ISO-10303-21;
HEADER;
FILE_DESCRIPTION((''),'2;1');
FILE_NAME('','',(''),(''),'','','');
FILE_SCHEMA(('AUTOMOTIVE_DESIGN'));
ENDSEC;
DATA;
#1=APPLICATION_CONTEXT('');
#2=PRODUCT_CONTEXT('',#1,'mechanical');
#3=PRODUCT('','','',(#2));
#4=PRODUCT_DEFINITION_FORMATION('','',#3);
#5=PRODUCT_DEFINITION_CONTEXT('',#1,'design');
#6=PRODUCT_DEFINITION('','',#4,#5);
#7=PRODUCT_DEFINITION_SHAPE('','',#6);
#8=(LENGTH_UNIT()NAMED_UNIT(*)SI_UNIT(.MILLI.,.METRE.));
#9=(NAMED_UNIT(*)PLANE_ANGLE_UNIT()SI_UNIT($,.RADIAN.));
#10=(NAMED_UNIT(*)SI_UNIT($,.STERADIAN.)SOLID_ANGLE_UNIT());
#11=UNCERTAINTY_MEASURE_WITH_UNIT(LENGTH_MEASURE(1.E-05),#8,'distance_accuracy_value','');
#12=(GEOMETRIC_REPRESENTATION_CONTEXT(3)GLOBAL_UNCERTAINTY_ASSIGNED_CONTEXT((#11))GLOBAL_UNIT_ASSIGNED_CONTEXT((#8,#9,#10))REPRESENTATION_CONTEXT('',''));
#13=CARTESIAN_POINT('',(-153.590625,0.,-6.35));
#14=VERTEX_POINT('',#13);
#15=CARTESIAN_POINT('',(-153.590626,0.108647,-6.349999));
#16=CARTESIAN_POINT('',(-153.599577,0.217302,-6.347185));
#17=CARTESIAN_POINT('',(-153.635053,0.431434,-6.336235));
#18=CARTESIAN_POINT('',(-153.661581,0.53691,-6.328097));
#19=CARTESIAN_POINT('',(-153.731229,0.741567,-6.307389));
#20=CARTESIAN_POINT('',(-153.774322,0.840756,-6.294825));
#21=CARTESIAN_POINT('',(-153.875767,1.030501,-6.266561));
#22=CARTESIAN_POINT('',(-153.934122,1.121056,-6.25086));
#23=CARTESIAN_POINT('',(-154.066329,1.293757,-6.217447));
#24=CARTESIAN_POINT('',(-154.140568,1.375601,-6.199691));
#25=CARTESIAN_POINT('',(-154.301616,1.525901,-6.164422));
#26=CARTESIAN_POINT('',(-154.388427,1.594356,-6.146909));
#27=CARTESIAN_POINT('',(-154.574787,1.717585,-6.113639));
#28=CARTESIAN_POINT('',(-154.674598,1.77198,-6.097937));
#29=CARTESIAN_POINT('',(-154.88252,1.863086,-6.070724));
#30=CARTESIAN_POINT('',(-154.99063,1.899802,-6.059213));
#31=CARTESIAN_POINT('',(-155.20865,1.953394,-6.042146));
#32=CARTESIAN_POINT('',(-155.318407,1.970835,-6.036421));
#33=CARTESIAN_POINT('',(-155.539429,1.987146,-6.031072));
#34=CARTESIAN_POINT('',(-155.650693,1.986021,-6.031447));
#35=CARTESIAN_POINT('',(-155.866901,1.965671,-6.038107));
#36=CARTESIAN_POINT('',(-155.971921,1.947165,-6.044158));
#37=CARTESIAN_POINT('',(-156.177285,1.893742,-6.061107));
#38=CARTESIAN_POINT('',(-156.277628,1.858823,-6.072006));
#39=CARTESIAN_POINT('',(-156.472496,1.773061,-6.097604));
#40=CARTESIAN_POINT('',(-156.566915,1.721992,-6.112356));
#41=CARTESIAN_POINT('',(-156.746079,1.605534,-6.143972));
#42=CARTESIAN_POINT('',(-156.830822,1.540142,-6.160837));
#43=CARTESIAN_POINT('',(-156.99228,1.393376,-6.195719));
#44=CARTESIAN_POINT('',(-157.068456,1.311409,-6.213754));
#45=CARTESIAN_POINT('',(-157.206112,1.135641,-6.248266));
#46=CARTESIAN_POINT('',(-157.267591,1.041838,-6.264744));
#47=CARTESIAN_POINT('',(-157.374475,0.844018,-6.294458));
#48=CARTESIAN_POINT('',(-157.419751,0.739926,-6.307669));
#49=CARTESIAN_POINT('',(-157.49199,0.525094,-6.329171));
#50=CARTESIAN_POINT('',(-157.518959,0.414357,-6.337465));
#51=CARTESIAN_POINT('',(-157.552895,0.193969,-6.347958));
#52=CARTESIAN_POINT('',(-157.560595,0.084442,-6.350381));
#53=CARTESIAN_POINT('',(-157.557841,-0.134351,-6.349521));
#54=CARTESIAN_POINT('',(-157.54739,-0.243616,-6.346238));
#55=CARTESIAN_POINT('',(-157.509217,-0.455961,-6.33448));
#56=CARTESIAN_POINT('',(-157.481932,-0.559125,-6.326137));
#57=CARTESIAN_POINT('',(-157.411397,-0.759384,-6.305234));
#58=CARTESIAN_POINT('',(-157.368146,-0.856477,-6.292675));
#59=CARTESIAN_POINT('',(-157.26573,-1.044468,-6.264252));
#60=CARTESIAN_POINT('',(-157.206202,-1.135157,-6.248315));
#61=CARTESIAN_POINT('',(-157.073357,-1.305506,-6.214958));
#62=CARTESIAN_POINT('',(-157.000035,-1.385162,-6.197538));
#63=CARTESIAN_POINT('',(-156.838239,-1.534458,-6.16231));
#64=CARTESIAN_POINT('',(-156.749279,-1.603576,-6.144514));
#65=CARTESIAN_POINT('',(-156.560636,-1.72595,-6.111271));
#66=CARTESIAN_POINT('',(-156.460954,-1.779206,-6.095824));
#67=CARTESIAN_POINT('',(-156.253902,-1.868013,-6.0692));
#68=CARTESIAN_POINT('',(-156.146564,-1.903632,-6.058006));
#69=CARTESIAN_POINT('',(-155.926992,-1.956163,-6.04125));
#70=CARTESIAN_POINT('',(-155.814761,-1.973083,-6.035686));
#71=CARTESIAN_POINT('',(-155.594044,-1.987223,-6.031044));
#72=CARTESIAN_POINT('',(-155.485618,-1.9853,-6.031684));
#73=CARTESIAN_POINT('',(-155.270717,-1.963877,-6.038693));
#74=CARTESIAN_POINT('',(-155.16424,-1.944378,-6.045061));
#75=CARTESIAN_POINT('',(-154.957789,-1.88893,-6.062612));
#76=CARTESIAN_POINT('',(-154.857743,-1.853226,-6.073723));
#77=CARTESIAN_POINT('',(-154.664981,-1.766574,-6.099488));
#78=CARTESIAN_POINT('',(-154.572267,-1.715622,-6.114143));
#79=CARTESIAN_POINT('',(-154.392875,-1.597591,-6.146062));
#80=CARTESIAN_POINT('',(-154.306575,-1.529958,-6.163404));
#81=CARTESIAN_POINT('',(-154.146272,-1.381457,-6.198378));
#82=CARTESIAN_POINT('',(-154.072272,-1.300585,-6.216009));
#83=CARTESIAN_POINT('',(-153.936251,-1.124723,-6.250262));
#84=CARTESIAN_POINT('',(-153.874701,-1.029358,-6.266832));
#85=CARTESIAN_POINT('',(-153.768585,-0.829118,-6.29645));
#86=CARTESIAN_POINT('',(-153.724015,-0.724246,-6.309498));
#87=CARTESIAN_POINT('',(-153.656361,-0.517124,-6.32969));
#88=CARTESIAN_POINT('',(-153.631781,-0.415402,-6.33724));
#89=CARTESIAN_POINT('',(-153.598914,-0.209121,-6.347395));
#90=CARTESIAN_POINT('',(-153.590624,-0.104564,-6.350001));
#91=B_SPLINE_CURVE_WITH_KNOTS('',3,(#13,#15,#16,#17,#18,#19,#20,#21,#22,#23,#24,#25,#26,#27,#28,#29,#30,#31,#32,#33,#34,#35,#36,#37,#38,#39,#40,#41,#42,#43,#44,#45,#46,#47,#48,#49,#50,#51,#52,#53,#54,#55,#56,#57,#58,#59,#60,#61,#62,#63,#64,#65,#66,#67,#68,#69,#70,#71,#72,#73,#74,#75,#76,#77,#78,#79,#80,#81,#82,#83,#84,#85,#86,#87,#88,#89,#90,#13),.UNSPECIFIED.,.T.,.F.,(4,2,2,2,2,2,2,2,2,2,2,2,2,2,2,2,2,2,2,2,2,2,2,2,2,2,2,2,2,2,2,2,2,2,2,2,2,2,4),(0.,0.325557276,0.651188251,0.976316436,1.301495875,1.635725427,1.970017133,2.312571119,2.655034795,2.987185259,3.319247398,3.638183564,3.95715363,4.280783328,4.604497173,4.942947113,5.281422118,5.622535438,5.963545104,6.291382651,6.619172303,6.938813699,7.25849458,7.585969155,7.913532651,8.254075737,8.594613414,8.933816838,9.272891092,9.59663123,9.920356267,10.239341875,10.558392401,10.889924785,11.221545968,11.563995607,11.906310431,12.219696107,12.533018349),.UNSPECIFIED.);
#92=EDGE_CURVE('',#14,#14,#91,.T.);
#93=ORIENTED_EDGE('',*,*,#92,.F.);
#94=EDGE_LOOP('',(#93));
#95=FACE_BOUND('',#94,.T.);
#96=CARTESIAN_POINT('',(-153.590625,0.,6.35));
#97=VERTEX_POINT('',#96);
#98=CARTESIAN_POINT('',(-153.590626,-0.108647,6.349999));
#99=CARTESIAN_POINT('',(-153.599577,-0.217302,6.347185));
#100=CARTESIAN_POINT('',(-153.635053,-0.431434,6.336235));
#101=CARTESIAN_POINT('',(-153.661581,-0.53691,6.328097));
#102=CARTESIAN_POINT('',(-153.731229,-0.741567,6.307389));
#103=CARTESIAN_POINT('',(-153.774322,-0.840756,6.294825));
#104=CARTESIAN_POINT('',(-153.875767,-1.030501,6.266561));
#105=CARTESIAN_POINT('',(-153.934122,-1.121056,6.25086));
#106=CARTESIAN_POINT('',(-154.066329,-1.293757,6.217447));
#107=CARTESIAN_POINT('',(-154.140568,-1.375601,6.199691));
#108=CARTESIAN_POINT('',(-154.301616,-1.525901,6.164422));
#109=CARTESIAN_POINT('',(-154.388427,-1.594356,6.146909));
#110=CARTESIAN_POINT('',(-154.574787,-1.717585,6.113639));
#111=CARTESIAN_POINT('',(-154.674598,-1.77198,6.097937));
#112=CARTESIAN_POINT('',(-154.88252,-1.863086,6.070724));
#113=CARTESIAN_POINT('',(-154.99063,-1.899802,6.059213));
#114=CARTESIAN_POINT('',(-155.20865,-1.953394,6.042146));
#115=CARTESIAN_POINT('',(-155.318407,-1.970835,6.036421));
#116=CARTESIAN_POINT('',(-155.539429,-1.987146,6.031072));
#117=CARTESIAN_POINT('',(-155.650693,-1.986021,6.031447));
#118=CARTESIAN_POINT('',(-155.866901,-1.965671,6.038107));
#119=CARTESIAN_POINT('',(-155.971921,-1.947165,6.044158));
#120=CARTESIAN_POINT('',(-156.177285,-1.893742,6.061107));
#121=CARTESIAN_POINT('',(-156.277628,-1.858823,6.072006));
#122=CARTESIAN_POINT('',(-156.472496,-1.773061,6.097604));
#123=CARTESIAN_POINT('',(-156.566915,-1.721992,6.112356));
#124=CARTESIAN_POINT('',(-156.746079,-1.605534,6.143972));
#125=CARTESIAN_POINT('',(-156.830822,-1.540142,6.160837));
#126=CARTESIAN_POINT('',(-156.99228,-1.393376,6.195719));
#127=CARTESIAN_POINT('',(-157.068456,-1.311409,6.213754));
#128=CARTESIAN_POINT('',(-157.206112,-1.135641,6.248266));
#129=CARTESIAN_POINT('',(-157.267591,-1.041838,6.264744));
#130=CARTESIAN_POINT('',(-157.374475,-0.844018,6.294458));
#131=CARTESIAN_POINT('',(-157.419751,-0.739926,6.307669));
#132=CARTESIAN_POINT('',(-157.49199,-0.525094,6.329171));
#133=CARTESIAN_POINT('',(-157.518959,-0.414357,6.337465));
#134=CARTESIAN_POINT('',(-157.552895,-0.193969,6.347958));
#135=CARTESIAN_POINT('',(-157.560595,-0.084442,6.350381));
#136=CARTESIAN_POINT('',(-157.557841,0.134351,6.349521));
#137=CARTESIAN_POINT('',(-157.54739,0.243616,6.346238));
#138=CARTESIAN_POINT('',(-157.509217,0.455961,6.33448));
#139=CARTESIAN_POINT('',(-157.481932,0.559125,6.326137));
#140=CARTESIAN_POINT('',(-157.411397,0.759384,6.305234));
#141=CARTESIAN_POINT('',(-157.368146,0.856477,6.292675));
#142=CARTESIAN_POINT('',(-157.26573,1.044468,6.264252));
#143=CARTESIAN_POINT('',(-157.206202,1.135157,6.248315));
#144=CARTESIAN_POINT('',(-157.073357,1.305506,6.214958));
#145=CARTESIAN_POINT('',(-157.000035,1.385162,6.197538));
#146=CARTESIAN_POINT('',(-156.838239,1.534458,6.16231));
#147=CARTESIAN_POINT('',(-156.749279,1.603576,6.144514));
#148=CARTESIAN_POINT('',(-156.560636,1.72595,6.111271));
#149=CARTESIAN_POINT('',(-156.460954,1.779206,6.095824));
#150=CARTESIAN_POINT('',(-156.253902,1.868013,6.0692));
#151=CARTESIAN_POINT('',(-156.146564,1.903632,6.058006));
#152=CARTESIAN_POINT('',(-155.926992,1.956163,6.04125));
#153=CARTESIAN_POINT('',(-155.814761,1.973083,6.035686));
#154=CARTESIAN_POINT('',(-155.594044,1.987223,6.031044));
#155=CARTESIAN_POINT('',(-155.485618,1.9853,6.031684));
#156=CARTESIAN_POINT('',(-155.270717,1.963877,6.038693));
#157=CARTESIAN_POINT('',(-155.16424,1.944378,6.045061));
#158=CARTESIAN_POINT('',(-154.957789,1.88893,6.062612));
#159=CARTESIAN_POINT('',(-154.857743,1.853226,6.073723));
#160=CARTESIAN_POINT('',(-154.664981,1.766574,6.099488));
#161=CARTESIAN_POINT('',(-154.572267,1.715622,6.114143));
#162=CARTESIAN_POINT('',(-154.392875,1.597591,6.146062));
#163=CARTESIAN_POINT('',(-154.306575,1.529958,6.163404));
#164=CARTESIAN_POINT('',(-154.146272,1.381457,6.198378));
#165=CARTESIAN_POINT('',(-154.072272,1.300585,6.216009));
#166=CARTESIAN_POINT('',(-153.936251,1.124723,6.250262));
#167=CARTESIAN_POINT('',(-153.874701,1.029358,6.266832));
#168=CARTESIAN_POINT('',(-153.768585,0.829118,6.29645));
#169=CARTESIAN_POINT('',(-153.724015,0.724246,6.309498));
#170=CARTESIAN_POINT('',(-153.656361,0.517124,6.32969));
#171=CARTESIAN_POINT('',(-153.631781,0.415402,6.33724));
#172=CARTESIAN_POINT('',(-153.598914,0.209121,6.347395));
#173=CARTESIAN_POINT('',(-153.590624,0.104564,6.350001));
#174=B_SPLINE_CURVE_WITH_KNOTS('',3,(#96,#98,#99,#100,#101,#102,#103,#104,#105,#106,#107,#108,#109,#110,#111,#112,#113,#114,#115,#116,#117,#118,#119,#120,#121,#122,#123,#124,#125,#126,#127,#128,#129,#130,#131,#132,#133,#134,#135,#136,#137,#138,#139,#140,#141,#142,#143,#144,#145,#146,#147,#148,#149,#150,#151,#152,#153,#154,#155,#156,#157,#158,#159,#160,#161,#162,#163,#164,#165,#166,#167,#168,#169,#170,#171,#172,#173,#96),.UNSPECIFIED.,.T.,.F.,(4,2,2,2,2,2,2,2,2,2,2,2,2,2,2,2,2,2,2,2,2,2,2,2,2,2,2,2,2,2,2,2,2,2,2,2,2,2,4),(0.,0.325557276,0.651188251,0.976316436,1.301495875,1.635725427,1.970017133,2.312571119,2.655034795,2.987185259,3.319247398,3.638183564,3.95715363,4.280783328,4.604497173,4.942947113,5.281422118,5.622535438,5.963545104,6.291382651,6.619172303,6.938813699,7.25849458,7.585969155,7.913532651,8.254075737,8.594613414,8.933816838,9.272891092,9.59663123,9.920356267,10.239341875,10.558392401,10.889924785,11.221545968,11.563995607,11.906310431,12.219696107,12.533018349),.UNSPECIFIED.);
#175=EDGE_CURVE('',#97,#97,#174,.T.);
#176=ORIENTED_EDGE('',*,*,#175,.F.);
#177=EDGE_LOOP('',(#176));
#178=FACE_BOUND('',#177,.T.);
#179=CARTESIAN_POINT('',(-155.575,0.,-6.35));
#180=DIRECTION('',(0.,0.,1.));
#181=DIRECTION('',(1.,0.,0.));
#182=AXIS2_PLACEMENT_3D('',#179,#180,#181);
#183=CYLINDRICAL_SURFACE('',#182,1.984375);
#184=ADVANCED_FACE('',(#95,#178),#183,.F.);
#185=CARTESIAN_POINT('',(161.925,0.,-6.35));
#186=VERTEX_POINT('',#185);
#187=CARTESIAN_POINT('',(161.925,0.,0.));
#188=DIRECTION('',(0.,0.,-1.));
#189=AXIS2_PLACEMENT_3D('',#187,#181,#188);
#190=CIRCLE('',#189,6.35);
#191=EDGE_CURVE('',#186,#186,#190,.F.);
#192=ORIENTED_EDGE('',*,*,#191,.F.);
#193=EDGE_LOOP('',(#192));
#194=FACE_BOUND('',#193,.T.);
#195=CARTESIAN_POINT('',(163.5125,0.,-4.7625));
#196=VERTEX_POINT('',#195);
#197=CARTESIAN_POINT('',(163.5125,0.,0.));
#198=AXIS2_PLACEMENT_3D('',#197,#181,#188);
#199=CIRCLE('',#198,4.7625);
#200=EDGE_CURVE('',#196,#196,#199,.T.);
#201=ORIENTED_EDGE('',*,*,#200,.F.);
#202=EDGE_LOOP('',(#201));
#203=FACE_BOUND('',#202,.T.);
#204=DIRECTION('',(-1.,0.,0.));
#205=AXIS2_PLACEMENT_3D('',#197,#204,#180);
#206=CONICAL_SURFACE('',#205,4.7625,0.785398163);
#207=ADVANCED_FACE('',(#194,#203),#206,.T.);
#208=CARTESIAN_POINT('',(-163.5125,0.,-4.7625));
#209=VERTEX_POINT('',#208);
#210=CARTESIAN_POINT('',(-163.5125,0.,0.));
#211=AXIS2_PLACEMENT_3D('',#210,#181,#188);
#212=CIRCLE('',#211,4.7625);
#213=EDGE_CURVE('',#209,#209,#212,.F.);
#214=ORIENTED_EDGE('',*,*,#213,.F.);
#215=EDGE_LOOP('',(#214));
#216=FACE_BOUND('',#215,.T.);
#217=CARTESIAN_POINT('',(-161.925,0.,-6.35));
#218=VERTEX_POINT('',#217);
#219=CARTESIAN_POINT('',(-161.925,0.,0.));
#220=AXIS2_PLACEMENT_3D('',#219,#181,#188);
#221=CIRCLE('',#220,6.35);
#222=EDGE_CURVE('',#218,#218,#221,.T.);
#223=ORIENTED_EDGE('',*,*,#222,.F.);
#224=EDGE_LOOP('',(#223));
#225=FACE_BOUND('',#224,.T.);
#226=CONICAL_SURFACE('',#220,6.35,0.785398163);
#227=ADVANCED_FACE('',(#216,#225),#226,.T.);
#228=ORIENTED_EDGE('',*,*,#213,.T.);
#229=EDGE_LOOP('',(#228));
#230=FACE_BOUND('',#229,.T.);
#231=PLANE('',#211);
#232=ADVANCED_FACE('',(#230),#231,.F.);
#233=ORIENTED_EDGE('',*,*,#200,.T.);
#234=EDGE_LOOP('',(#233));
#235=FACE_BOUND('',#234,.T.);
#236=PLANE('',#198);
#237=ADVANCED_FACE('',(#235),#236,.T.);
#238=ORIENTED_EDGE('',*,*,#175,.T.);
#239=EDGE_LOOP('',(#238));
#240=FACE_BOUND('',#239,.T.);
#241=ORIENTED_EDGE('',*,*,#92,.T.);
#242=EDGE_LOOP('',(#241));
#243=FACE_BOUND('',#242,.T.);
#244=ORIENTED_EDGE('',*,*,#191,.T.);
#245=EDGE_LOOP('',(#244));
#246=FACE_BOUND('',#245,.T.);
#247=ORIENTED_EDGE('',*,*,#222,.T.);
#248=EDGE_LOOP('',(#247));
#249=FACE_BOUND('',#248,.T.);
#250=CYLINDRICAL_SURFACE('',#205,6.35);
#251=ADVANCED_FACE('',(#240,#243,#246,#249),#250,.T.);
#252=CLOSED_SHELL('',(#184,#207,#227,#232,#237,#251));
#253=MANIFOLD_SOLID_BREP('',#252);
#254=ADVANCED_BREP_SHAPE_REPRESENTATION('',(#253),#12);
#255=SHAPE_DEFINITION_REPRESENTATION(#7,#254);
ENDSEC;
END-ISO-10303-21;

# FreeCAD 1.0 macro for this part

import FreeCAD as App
import Part
import Sketcher
Q = App.Units.Quantity


def edges_at(feature, points):
    """Names of the edges that pass closest to the given points."""
    edges = feature.Shape.Edges
    near = lambda p: min(range(len(edges)), key=lambda i: edges[i].distToShape(Part.Vertex(*p))[0])
    return sorted({f"Edge{near(p) + 1}" for p in points})

doc = App.newDocument("Part")
params = doc.addObject("Spreadsheet::Sheet", "Params")
for row, (alias, value) in enumerate([
    ("sketch1_diameter", "0.5 in"),
    ("pad1_length", "12.875 in"),
    ("chamfer_size", "0.0625 in"),
    ("sketch2_diameter", "0.15625 in"),
], start=1):
    params.set(f"A{row}", alias)
    params.set(f"B{row}", "=" + value)
    params.setAlias(f"B{row}", alias)

body = doc.addObject("PartDesign::Body", "Body")

sketch1 = body.newObject("Sketcher::SketchObject", "Sketch")
sketch1.AttachmentSupport = (doc.getObject("YZ_Plane"), [""])
sketch1.MapMode = "FlatFace"
sketch1.addGeometry(Part.Circle(App.Vector(0, 0, 0), App.Vector(0, 0, 1), 6), False)
sketch1.addConstraint([
    Sketcher.Constraint("Coincident", 0, 3, -1, 1),
    Sketcher.Constraint("Diameter", 0, Q("0.5 in")),
])
sketch1.setExpression("Constraints[1]", "Params.sketch1_diameter")
pad1 = body.newObject("PartDesign::Pad", "Pad")
pad1.Profile = sketch1
pad1.setExpression("Length", "Params.pad1_length")
pad1.Midplane = True
doc.recompute()

chamfer = body.newObject("PartDesign::Chamfer", "Chamfer")
chamfer.Base = (pad1, edges_at(pad1, [(-163.512, 0, 6.35), (163.512, 0, 6.35)]))
chamfer.setExpression("Size", "Params.chamfer_size")

sketch2 = body.newObject("Sketcher::SketchObject", "Sketch001")
sketch2.AttachmentSupport = (doc.getObject("XY_Plane"), [""])
sketch2.MapMode = "FlatFace"
sketch2.addGeometry(Part.Circle(App.Vector(-155.6, 0, 0), App.Vector(0, 0, 1), 2), False)
sketch2.addConstraint([
    Sketcher.Constraint("PointOnObject", 0, 3, -1),
    Sketcher.Constraint("Diameter", 0, Q("0.15625 in")),
    Sketcher.Constraint("DistanceX", 0, 3, -1, 1, Q("6.125 in")),
])
sketch2.setExpression("Constraints[1]", "Params.sketch2_diameter")
pocket1 = body.newObject("PartDesign::Pocket", "Pocket")
pocket1.Profile = sketch2
pocket1.Type = "ThroughAll"
pocket1.Midplane = True

doc.recompute()
